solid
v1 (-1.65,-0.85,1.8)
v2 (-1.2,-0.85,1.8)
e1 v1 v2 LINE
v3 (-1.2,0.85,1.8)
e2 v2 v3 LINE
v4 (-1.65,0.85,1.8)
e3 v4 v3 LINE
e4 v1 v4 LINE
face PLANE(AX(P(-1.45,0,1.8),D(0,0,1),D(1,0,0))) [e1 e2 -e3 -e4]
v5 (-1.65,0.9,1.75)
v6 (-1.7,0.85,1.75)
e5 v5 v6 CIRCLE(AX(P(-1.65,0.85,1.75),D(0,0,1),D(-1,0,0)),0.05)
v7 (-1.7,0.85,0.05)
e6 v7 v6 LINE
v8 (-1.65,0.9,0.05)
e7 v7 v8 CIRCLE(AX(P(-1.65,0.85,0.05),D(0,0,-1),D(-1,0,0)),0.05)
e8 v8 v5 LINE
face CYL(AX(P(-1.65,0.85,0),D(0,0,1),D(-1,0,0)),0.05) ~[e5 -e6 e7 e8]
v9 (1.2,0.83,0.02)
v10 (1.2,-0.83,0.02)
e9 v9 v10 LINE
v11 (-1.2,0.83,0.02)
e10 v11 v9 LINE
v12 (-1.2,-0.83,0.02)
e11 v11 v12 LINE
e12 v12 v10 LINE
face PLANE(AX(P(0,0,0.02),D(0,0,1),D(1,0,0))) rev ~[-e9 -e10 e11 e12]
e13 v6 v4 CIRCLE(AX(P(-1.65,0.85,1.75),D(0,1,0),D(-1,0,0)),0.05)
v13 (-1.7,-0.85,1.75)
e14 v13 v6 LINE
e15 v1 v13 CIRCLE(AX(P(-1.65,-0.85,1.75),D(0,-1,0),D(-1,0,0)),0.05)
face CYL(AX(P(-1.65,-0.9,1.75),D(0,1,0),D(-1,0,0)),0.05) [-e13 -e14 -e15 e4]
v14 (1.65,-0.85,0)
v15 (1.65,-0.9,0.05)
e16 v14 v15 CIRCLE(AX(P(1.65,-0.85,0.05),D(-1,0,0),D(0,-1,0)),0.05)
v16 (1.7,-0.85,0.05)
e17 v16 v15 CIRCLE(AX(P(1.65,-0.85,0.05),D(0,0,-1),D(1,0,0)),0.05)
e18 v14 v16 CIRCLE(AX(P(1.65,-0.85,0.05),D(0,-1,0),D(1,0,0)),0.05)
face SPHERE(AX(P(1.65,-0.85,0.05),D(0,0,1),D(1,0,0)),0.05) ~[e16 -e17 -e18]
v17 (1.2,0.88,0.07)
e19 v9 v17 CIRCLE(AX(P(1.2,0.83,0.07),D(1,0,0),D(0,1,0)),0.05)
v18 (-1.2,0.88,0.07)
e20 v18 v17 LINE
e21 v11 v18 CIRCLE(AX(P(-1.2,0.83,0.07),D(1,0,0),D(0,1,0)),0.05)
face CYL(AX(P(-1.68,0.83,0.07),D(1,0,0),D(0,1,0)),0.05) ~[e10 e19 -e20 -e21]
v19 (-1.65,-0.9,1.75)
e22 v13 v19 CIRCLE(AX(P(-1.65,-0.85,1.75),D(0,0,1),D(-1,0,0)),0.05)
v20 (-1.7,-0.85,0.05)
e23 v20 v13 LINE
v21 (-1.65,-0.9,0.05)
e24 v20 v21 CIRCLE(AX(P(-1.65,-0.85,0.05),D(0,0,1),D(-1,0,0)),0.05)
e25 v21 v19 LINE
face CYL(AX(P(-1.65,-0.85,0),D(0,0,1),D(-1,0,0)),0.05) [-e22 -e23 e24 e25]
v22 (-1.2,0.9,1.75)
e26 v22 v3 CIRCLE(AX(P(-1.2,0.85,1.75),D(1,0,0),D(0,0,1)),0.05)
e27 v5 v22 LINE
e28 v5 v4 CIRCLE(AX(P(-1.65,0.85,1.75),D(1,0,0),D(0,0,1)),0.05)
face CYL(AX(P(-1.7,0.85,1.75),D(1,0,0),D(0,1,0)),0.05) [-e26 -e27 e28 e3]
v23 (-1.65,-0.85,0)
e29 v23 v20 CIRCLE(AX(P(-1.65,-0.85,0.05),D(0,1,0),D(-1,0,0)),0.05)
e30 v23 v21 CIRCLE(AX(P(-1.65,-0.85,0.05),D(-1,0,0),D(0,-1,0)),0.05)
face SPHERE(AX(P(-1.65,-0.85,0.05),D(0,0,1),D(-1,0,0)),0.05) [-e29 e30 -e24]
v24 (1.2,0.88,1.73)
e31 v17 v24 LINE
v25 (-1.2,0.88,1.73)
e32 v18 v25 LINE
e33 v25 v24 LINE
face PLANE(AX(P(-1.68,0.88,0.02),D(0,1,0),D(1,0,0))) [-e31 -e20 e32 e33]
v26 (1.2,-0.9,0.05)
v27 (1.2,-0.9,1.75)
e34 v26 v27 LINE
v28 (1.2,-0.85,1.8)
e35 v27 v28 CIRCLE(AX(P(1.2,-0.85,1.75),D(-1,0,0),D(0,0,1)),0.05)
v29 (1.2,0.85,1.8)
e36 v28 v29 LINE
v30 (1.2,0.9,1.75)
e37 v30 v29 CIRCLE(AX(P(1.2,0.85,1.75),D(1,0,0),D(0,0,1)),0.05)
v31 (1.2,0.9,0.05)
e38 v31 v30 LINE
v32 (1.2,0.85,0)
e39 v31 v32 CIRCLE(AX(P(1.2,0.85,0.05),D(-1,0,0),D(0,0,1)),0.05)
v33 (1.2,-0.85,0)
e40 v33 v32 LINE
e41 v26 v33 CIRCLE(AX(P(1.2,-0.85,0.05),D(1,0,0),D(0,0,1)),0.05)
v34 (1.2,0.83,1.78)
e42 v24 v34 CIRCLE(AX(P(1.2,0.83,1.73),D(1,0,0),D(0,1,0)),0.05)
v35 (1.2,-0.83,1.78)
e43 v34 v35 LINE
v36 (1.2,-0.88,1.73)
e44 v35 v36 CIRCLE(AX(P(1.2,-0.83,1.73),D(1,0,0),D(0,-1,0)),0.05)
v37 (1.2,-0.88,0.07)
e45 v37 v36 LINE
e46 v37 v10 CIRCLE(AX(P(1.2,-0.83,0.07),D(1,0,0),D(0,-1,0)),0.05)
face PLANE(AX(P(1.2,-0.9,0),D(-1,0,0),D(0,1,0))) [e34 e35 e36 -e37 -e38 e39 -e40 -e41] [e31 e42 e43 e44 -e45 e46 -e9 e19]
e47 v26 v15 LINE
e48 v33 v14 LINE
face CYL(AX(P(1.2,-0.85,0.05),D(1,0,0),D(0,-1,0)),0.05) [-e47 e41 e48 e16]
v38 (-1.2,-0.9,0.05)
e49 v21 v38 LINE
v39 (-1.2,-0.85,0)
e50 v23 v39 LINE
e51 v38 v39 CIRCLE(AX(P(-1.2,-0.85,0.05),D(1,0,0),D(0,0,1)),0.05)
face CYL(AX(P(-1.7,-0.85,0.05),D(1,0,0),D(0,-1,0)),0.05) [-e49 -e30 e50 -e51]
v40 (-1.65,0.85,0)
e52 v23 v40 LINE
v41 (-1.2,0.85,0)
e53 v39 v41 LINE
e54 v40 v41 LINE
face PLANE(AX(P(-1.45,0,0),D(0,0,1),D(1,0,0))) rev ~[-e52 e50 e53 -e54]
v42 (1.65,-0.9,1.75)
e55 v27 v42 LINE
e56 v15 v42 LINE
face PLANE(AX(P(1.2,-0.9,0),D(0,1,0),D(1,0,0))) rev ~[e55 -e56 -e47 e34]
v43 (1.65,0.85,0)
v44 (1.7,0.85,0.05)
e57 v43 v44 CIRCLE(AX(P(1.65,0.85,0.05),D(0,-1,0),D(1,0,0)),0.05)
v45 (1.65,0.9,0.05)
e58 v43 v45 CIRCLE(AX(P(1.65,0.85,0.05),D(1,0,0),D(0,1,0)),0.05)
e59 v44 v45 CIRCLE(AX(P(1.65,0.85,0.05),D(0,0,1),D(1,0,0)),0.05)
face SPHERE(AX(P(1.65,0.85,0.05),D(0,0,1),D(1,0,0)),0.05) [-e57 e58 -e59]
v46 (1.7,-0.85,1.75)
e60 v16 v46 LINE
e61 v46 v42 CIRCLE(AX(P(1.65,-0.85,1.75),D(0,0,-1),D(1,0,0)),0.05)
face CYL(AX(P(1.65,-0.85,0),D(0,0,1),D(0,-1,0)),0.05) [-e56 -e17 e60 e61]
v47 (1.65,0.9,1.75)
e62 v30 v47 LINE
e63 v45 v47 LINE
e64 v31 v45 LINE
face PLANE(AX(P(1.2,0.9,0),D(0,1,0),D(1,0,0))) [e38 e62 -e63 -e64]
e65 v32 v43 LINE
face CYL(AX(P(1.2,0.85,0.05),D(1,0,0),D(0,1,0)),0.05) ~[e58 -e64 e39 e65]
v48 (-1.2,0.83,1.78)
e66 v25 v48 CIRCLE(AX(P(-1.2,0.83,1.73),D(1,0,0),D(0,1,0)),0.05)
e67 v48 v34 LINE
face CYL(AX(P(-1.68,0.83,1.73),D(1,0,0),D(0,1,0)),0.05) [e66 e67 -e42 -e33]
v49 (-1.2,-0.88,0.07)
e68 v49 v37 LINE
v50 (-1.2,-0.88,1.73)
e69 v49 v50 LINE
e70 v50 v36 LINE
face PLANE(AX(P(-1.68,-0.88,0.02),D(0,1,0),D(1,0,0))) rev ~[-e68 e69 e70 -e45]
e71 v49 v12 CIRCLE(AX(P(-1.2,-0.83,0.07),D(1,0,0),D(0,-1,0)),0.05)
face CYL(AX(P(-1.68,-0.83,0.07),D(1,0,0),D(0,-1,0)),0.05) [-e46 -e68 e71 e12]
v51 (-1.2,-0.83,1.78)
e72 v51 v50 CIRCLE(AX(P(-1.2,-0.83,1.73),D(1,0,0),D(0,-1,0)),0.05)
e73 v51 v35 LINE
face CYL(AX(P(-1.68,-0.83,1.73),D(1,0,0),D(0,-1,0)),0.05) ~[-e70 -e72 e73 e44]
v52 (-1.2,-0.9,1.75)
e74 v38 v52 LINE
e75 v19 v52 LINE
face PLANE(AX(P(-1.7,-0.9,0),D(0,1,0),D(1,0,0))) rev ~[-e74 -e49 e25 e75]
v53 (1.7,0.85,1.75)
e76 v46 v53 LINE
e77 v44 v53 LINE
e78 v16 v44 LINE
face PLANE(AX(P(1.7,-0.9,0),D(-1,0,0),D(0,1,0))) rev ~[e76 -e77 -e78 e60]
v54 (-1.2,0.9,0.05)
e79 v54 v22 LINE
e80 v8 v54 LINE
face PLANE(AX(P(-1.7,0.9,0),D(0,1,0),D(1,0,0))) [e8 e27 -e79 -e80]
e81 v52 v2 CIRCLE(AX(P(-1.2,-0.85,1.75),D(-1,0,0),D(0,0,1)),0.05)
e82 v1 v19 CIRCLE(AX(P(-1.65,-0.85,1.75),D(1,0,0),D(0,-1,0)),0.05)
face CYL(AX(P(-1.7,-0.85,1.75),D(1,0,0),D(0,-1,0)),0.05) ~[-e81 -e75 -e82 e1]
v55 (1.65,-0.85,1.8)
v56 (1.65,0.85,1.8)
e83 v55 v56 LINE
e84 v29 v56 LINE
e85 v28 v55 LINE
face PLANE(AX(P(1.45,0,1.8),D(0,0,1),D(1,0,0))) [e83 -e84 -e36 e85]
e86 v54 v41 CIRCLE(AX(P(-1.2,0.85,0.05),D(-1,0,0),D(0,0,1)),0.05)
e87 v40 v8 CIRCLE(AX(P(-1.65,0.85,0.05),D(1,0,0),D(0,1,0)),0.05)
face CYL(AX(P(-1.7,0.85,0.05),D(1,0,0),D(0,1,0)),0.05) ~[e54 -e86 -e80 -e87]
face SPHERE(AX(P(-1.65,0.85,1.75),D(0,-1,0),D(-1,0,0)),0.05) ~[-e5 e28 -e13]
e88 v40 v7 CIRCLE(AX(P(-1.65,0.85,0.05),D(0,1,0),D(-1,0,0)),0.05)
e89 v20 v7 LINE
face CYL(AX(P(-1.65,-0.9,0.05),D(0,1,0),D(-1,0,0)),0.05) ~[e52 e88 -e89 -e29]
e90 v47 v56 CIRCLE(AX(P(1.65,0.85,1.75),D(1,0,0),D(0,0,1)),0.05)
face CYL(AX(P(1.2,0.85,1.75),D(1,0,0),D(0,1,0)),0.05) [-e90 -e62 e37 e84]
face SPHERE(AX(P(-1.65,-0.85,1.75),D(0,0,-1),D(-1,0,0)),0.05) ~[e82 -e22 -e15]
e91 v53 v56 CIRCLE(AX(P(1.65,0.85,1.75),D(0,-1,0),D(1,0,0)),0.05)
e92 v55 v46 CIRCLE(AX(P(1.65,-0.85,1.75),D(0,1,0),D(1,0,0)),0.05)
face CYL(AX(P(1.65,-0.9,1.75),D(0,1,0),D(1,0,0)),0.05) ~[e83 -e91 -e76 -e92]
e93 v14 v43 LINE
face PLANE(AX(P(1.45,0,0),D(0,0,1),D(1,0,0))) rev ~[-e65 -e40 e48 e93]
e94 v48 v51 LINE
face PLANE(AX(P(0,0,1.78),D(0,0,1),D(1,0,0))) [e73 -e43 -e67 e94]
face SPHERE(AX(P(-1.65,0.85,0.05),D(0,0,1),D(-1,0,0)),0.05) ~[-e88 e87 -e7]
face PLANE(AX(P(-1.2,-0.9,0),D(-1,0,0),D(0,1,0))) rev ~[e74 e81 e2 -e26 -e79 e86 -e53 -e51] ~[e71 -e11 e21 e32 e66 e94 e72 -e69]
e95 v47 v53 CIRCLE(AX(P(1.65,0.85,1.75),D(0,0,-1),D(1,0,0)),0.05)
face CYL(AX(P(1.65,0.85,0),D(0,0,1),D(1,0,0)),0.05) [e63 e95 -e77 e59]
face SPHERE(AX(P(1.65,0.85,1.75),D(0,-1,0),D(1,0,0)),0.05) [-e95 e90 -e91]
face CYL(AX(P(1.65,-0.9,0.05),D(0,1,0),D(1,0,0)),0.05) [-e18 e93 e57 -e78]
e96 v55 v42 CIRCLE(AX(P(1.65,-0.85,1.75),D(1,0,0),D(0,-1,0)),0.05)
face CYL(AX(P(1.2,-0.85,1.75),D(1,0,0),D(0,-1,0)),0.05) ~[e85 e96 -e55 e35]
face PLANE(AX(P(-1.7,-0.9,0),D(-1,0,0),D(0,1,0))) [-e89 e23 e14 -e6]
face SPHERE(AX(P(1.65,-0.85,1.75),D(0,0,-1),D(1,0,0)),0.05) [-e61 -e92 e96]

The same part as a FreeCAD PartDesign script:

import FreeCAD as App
import Part
import Sketcher
Q = App.Units.Quantity


def edges_at(feature, points):
    """Names of the edges that pass closest to the given points."""
    edges = feature.Shape.Edges
    near = lambda p: min(range(len(edges)), key=lambda i: edges[i].distToShape(Part.Vertex(*p))[0])
    return sorted({f"Edge{near(p) + 1}" for p in points})


def add_polygon(sketch, points):
    """Adds a closed chain of lines whose ends are joined by coincident constraints."""
    first, n = sketch.GeometryCount, len(points)
    for a, b in zip(points, points[1:] + points[:1]):
        sketch.addGeometry(Part.LineSegment(App.Vector(*a, 0), App.Vector(*b, 0)), False)
    for i in range(n):
        sketch.addConstraint(Sketcher.Constraint("Coincident", first + i, 2, first + (i + 1) % n, 1))

doc = App.newDocument("Part")
body = doc.addObject("PartDesign::Body", "Body")

sketch1 = body.newObject("Sketcher::SketchObject", "Sketch")
sketch1.AttachmentSupport = (doc.getObject("XY_Plane"), [""])
sketch1.MapMode = "FlatFace"
add_polygon(sketch1, [(-1.7, 0.9), (-1.7, -0.9), (-1.2, -0.9), (-1.2, 0.9)])
sketch1.addConstraint([
    Sketcher.Constraint("Vertical", 0),
    Sketcher.Constraint("Horizontal", 1),
    Sketcher.Constraint("Vertical", 2),
    Sketcher.Constraint("Horizontal", 3),
    Sketcher.Constraint("DistanceX", 1, 1, 1, 2, Q("0.5 mm")),
    Sketcher.Constraint("DistanceY", 0, 2, 0, 1, Q("1.8 mm")),
    Sketcher.Constraint("DistanceX", 0, 2, -1, 1, Q("1.7 mm")),
    Sketcher.Constraint("DistanceY", 0, 2, -1, 1, Q("0.9 mm")),
])
pad1 = body.newObject("PartDesign::Pad", "Pad")
pad1.Profile = sketch1
pad1.Length = 1.8
doc.recompute()

fillet = body.newObject("PartDesign::Fillet", "Fillet")
fillet.Base = (pad1, edges_at(pad1, [
    (-1.7, -0.9, 0.9),
    (-1.7, 0, 1.8),
    (-1.7, 0.9, 0.9),
    (-1.7, 0, 0),
    (-1.45, -0.9, 0),
    (-1.45, -0.9, 1.8),
    (-1.45, 0.9, 0),
    (-1.45, 0.9, 1.8),
]))
fillet.Radius = 0.05
body2 = doc.addObject("PartDesign::Body", "Body001")

sketch2 = body2.newObject("Sketcher::SketchObject", "Sketch001")
sketch2.AttachmentSupport = (doc.getObject("XY_Plane001"), [""])
sketch2.MapMode = "FlatFace"
add_polygon(sketch2, [(1.2, 0.9), (1.2, -0.9), (1.7, -0.9), (1.7, 0.9)])
sketch2.addConstraint([
    Sketcher.Constraint("Vertical", 0),
    Sketcher.Constraint("Horizontal", 1),
    Sketcher.Constraint("Vertical", 2),
    Sketcher.Constraint("Horizontal", 3),
    Sketcher.Constraint("DistanceX", 1, 1, 1, 2, Q("0.5 mm")),
    Sketcher.Constraint("DistanceY", 0, 2, 0, 1, Q("1.8 mm")),
    Sketcher.Constraint("DistanceX", -1, 1, 0, 2, Q("1.2 mm")),
    Sketcher.Constraint("DistanceY", 0, 2, -1, 1, Q("0.9 mm")),
])
pad2 = body2.newObject("PartDesign::Pad", "Pad001")
pad2.Profile = sketch2
pad2.Length = 1.8
doc.recompute()

fillet2 = body2.newObject("PartDesign::Fillet", "Fillet001")
fillet2.Base = (pad2, edges_at(pad2, [
    (1.7, -0.9, 0.9),
    (1.7, 0, 1.8),
    (1.7, 0.9, 0.9),
    (1.7, 0, 0),
    (1.45, -0.9, 0),
    (1.45, -0.9, 1.8),
    (1.45, 0.9, 0),
    (1.45, 0.9, 1.8),
]))
fillet2.Radius = 0.05
body3 = doc.addObject("PartDesign::Body", "Body002")

sketch3 = body3.newObject("Sketcher::SketchObject", "Sketch002")
sketch3.AttachmentSupport = (doc.getObject("XY_Plane002"), [""])
sketch3.MapMode = "FlatFace"
sketch3.AttachmentOffset = App.Placement(App.Vector(0, 0, 0.02), App.Rotation())
add_polygon(sketch3, [(-1.7, 0.9), (-1.7, -0.9), (1.7, -0.9), (1.7, 0.9)])
sketch3.addConstraint([
    Sketcher.Constraint("Vertical", 0),
    Sketcher.Constraint("Horizontal", 1),
    Sketcher.Constraint("Vertical", 2),
    Sketcher.Constraint("Horizontal", 3),
    Sketcher.Constraint("Symmetric", 0, 2, 2, 2, -1, 1),
    Sketcher.Constraint("DistanceX", 1, 1, 1, 2, Q("3.36 mm")),
    Sketcher.Constraint("DistanceY", 0, 2, 0, 1, Q("1.76 mm")),
])
pad3 = body3.newObject("PartDesign::Pad", "Pad002")
pad3.Profile = sketch3
pad3.Length = 1.76
doc.recompute()

fillet3 = body3.newObject("PartDesign::Fillet", "Fillet002")
fillet3.Base = (pad3, edges_at(pad3, [
    (0, -0.88, 0.02),
    (0, -0.88, 1.78),
    (0, 0.88, 0.02),
    (0, 0.88, 1.78),
]))
fillet3.Radius = 0.05
doc.recompute()

boolean = body3.newObject("PartDesign::Boolean", "Boolean")
boolean.Type = "Fuse"
boolean.addObjects([body])
doc.recompute()

boolean2 = body3.newObject("PartDesign::Boolean", "Boolean001")
boolean2.Type = "Fuse"
boolean2.addObjects([body2])

doc.recompute()
